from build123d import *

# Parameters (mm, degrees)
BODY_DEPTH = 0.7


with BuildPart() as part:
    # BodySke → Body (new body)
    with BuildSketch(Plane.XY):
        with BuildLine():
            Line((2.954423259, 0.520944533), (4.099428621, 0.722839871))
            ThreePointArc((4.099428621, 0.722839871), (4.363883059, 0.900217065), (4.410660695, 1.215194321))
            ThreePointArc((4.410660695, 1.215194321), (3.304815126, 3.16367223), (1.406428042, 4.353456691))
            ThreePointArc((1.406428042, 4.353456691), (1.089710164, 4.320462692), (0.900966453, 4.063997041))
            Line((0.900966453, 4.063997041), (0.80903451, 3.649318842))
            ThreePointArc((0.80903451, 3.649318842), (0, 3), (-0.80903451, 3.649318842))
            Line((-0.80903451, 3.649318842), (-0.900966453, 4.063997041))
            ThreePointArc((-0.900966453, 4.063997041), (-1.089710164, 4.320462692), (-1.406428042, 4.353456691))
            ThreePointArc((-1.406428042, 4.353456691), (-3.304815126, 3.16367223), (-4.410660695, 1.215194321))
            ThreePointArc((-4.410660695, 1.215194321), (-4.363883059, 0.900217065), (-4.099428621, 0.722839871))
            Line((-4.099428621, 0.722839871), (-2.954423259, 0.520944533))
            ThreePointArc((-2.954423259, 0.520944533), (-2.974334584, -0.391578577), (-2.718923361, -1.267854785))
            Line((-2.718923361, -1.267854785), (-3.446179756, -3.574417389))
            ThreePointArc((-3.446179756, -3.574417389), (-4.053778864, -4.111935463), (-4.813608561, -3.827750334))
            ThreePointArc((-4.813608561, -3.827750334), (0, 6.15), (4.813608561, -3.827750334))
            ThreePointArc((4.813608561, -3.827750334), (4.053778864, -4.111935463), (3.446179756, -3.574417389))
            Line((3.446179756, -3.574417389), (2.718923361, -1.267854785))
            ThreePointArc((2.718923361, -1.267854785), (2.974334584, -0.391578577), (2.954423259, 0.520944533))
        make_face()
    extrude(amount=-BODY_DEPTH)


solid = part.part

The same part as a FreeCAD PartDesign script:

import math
import FreeCAD as App
import Part
import Sketcher
from FreeCAD import Vector
Q = App.Units.Quantity

doc = App.newDocument("Part")
body = doc.addObject("PartDesign::Body", "Body")

# Sketch on XY plane
sketch1 = body.newObject("Sketcher::SketchObject", "Sketch")
sketch1.AttachmentSupport = (doc.getObject("XY_Plane"), [""])
sketch1.MapMode = "FlatFace"
sketch1.addGeometry([
    Part.LineSegment(Vector(4.1, 0.72, 0), Vector(2.95, 0.52, 0)),  # 0
    Part.ArcOfCircle(Part.Circle(Vector(0, 0, 0), Vector(0, 0, 1), 3), math.radians(-25), math.radians(10)),  # 1
    Part.LineSegment(Vector(2.72, -1.27, 0), Vector(3.45, -3.57, 0)),  # 2
    Part.ArcOfCircle(Part.Circle(Vector(4.2, -3.34, 0), Vector(0, 0, 1), 0.79), math.radians(-162), math.radians(-38)),  # 3
    Part.ArcOfCircle(Part.Circle(Vector(0, 0, 0), Vector(0, 0, 1), 6.15), math.radians(-38), math.radians(218)),  # 4
    Part.ArcOfCircle(Part.Circle(Vector(-4.2, -3.34, 0), Vector(0, 0, 1), 0.79), math.radians(-142), math.radians(-18)),  # 5
    Part.LineSegment(Vector(-3.45, -3.57, 0), Vector(-2.72, -1.27, 0)),  # 6
    Part.ArcOfCircle(Part.Circle(Vector(0, 0, 0), Vector(0, 0, 1), 3), math.radians(170), math.radians(205)),  # 7
    Part.LineSegment(Vector(-2.95, 0.52, 0), Vector(-4.1, 0.72, 0)),  # 8
    Part.ArcOfCircle(Part.Circle(Vector(-4.03, 1.11, 0), Vector(0, 0, 1), 0.39), math.radians(165), math.radians(260)),  # 9
    Part.ArcOfCircle(Part.Circle(Vector(0, 0, 0), Vector(0, 0, 1), 4.58), math.radians(108), math.radians(165)),  # 10
    Part.ArcOfCircle(Part.Circle(Vector(-1.29, 3.98, 0), Vector(0, 0, 1), 0.39), math.radians(13), math.radians(108)),  # 11
    Part.LineSegment(Vector(-0.9, 4.06, 0), Vector(-0.81, 3.65, 0)),  # 12
    Part.ArcOfCircle(Part.Circle(Vector(0, 3.83, 0), Vector(0, 0, 1), 0.83), math.radians(-167), math.radians(-13)),  # 13
    Part.LineSegment(Vector(0.81, 3.65, 0), Vector(0.9, 4.06, 0)),  # 14
    Part.ArcOfCircle(Part.Circle(Vector(1.29, 3.98, 0), Vector(0, 0, 1), 0.39), math.radians(72), math.radians(167)),  # 15
    Part.ArcOfCircle(Part.Circle(Vector(0, 0, 0), Vector(0, 0, 1), 4.58), math.radians(15), math.radians(72)),  # 16
    Part.ArcOfCircle(Part.Circle(Vector(4.03, 1.11, 0), Vector(0, 0, 1), 0.39), math.radians(-80), math.radians(15)),  # 17
], False)
sketch1.addConstraint([
    Sketcher.Constraint("Coincident", 0, 2, 1, 2),
    Sketcher.Constraint("Coincident", 1, 1, 2, 1),
    Sketcher.Constraint("Tangent", 2, 2, 3, 1),
    Sketcher.Constraint("Tangent", 3, 2, 4, 1),
    Sketcher.Constraint("Tangent", 4, 2, 5, 1),
    Sketcher.Constraint("Tangent", 5, 2, 6, 1),
    Sketcher.Constraint("Coincident", 6, 2, 7, 2),
    Sketcher.Constraint("Coincident", 7, 1, 8, 1),
    Sketcher.Constraint("Tangent", 8, 2, 9, 2),
    Sketcher.Constraint("Tangent", 9, 1, 10, 2),
    Sketcher.Constraint("Tangent", 10, 1, 11, 2),
    Sketcher.Constraint("Tangent", 11, 1, 12, 1),
    Sketcher.Constraint("Tangent", 12, 2, 13, 1),
    Sketcher.Constraint("Tangent", 13, 2, 14, 1),
    Sketcher.Constraint("Tangent", 14, 2, 15, 2),
    Sketcher.Constraint("Tangent", 15, 1, 16, 2),
    Sketcher.Constraint("Tangent", 16, 1, 17, 2),
    Sketcher.Constraint("Tangent", 17, 1, 0, 1),
    Sketcher.Constraint("Coincident", 1, 3, -1, 1),
    Sketcher.Constraint("Coincident", 4, 3, -1, 1),
    Sketcher.Constraint("Coincident", 7, 3, -1, 1),
    Sketcher.Constraint("Coincident", 10, 3, -1, 1),
    Sketcher.Constraint("Coincident", 16, 3, -1, 1),
    Sketcher.Constraint("Equal", 3, 5),
    Sketcher.Constraint("Equal", 1, 7),
    Sketcher.Constraint("Equal", 9, 11),
    Sketcher.Constraint("Equal", 11, 15),
    Sketcher.Constraint("Equal", 10, 16),
    Sketcher.Constraint("Equal", 15, 17),
    Sketcher.Constraint("Symmetric", 2, 2, 5, 2, -2),
    Sketcher.Constraint("Symmetric", 12, 2, 13, 2, -2),
    Sketcher.Constraint("Symmetric", 8, 2, 17, 1, -2),
    Sketcher.Constraint("Radius", 1, 3.0),
    Sketcher.Constraint("Angle", 0, Q("-170 deg")),
    Sketcher.Constraint("Radius", 4, 6.15),
    Sketcher.Constraint("Angle", 2, Q("-72.5 deg")),
    Sketcher.Constraint("Angle", 12, Q("-77.5 deg")),
    Sketcher.Constraint("Radius", 10, 4.575),
    Sketcher.Constraint("Radius", 3, 0.7875),
    Sketcher.Constraint("Radius", 9, 0.39375),
    Sketcher.Constraint("DistanceX", 11, 1, 13, 2, 1.710001),
    Sketcher.Constraint("Radius", 13, 0.828677),
    Sketcher.Constraint("Distance", 2, 2.418498),
    Sketcher.Constraint("DistanceX", 1, 1, 0, 2, 0.2355),
])
pad1 = body.newObject("PartDesign::Pad", "Pad")
pad1.Profile = sketch1
pad1.Length = 0.7
pad1.Reversed = True

doc.recompute()
